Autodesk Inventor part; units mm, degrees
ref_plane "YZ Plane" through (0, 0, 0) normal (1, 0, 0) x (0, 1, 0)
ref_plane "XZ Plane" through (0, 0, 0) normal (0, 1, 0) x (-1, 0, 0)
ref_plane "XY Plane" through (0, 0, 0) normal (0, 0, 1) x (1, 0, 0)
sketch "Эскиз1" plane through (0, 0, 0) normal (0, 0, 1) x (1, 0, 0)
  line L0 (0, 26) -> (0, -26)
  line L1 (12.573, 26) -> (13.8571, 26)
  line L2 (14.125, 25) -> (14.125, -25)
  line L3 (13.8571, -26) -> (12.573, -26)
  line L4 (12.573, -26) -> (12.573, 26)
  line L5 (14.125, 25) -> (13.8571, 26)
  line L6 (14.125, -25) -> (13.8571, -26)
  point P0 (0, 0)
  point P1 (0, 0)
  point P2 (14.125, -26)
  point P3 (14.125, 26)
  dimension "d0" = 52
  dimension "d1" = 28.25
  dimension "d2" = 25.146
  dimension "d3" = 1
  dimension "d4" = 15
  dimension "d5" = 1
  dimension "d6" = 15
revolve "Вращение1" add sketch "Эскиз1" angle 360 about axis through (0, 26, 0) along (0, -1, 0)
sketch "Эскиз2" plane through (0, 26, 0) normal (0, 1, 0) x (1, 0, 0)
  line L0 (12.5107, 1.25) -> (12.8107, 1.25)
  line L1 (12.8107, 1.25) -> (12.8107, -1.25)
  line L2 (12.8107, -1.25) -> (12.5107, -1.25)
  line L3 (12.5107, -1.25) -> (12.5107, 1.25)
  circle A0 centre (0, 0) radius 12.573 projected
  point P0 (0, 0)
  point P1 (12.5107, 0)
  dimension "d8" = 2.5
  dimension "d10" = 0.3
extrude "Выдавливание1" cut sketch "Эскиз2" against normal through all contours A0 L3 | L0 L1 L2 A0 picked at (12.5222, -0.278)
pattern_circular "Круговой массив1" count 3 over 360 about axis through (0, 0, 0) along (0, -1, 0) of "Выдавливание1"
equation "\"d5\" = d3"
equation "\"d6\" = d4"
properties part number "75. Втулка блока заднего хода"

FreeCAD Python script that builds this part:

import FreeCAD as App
import Part
import Sketcher

V = App.Vector


def add_polygon(sketch, points):
    """Adds a closed chain of lines whose ends are joined by coincident constraints."""
    first, n = sketch.GeometryCount, len(points)
    for a, b in zip(points, points[1:] + points[:1]):
        sketch.addGeometry(Part.LineSegment(App.Vector(*a, 0), App.Vector(*b, 0)), False)
    for i in range(n):
        sketch.addConstraint(Sketcher.Constraint("Coincident", first + i, 2, first + (i + 1) % n, 1))

doc = App.newDocument("Part")
body = doc.addObject("PartDesign::Body", "Body")

# Sketch on XY plane
sketch1 = body.newObject("Sketcher::SketchObject", "Sketch")
sketch1.AttachmentSupport = (doc.getObject("XY_Plane"), [""])
sketch1.MapMode = "FlatFace"
add_polygon(sketch1, [(13.9, 26), (12.6, 26), (12.6, -26), (13.9, -26), (14.1, -25), (14.1, 25)])  # lines 0-5
sketch1.addConstraint(Sketcher.Constraint("Horizontal", 0))
sketch1.addConstraint(Sketcher.Constraint("Vertical", 1))
sketch1.addConstraint(Sketcher.Constraint("Horizontal", 2))
sketch1.addConstraint(Sketcher.Constraint("Vertical", 4))
sketch1.addConstraint(Sketcher.Constraint("Symmetric", 2, 2, 5, 2, -1))
sketch1.addConstraint(Sketcher.Constraint("Equal", 3, 5))
sketch1.addConstraint(Sketcher.Constraint("DistanceY", 1, 2, 1, 1, 52.0))
sketch1.addConstraint(Sketcher.Constraint("DistanceY", 2, 2, 3, 2, 1.0))
sketch1.addConstraint(Sketcher.Constraint("DistanceX", 0, 2, 0, 1, 1.284))
sketch1.addConstraint(Sketcher.Constraint("DistanceX", -1, 1, 0, 2, 12.573))
sketch1.addConstraint(Sketcher.Constraint("DistanceX", -1, 1, 3, 2, 14.125))
revolution = body.newObject("PartDesign::Revolution", "Revolution")
revolution.Profile = sketch1
revolution.ReferenceAxis = (sketch1, ["V_Axis"])
revolution.Angle = 360

# Sketch on XZ plane
sketch2 = body.newObject("Sketcher::SketchObject", "Sketch001")
sketch2.AttachmentSupport = (doc.getObject("XZ_Plane"), [""])
sketch2.MapMode = "FlatFace"
sketch2.AttachmentOffset = App.Placement(V(0, 0, -26), App.Rotation())
add_polygon(sketch2, [(12.51, -1.25), (12.51, 1.25), (12.81, 1.25), (12.81, -1.25)])  # lines 0-3
sketch2.addConstraint(Sketcher.Constraint("Vertical", 0))
sketch2.addConstraint(Sketcher.Constraint("Horizontal", 1))
sketch2.addConstraint(Sketcher.Constraint("Vertical", 2))
sketch2.addConstraint(Sketcher.Constraint("Horizontal", 3))
sketch2.addConstraint(Sketcher.Constraint("DistanceX", 1, 1, 1, 2, 0.3))
sketch2.addConstraint(Sketcher.Constraint("DistanceY", 0, 1, 0, 2, 2.5))
sketch2.addConstraint(Sketcher.Constraint("DistanceY", -1, 1, 0, 2, 1.25))
sketch2.addConstraint(Sketcher.Constraint("DistanceX", -1, 1, 0, 2, 12.5107))
pocket1 = body.newObject("PartDesign::Pocket", "Pocket")
pocket1.Profile = sketch2
pocket1.Type = "ThroughAll"
pocket1.Reversed = True
doc.recompute()

polarpattern = body.newObject("PartDesign::PolarPattern", "PolarPattern")
polarpattern.Originals = [pocket1]
polarpattern.Axis = (doc.getObject("Y_Axis"), [""])
polarpattern.Angle = 360
polarpattern.Occurrences = 3
body.Tip = polarpattern

doc.recompute()
